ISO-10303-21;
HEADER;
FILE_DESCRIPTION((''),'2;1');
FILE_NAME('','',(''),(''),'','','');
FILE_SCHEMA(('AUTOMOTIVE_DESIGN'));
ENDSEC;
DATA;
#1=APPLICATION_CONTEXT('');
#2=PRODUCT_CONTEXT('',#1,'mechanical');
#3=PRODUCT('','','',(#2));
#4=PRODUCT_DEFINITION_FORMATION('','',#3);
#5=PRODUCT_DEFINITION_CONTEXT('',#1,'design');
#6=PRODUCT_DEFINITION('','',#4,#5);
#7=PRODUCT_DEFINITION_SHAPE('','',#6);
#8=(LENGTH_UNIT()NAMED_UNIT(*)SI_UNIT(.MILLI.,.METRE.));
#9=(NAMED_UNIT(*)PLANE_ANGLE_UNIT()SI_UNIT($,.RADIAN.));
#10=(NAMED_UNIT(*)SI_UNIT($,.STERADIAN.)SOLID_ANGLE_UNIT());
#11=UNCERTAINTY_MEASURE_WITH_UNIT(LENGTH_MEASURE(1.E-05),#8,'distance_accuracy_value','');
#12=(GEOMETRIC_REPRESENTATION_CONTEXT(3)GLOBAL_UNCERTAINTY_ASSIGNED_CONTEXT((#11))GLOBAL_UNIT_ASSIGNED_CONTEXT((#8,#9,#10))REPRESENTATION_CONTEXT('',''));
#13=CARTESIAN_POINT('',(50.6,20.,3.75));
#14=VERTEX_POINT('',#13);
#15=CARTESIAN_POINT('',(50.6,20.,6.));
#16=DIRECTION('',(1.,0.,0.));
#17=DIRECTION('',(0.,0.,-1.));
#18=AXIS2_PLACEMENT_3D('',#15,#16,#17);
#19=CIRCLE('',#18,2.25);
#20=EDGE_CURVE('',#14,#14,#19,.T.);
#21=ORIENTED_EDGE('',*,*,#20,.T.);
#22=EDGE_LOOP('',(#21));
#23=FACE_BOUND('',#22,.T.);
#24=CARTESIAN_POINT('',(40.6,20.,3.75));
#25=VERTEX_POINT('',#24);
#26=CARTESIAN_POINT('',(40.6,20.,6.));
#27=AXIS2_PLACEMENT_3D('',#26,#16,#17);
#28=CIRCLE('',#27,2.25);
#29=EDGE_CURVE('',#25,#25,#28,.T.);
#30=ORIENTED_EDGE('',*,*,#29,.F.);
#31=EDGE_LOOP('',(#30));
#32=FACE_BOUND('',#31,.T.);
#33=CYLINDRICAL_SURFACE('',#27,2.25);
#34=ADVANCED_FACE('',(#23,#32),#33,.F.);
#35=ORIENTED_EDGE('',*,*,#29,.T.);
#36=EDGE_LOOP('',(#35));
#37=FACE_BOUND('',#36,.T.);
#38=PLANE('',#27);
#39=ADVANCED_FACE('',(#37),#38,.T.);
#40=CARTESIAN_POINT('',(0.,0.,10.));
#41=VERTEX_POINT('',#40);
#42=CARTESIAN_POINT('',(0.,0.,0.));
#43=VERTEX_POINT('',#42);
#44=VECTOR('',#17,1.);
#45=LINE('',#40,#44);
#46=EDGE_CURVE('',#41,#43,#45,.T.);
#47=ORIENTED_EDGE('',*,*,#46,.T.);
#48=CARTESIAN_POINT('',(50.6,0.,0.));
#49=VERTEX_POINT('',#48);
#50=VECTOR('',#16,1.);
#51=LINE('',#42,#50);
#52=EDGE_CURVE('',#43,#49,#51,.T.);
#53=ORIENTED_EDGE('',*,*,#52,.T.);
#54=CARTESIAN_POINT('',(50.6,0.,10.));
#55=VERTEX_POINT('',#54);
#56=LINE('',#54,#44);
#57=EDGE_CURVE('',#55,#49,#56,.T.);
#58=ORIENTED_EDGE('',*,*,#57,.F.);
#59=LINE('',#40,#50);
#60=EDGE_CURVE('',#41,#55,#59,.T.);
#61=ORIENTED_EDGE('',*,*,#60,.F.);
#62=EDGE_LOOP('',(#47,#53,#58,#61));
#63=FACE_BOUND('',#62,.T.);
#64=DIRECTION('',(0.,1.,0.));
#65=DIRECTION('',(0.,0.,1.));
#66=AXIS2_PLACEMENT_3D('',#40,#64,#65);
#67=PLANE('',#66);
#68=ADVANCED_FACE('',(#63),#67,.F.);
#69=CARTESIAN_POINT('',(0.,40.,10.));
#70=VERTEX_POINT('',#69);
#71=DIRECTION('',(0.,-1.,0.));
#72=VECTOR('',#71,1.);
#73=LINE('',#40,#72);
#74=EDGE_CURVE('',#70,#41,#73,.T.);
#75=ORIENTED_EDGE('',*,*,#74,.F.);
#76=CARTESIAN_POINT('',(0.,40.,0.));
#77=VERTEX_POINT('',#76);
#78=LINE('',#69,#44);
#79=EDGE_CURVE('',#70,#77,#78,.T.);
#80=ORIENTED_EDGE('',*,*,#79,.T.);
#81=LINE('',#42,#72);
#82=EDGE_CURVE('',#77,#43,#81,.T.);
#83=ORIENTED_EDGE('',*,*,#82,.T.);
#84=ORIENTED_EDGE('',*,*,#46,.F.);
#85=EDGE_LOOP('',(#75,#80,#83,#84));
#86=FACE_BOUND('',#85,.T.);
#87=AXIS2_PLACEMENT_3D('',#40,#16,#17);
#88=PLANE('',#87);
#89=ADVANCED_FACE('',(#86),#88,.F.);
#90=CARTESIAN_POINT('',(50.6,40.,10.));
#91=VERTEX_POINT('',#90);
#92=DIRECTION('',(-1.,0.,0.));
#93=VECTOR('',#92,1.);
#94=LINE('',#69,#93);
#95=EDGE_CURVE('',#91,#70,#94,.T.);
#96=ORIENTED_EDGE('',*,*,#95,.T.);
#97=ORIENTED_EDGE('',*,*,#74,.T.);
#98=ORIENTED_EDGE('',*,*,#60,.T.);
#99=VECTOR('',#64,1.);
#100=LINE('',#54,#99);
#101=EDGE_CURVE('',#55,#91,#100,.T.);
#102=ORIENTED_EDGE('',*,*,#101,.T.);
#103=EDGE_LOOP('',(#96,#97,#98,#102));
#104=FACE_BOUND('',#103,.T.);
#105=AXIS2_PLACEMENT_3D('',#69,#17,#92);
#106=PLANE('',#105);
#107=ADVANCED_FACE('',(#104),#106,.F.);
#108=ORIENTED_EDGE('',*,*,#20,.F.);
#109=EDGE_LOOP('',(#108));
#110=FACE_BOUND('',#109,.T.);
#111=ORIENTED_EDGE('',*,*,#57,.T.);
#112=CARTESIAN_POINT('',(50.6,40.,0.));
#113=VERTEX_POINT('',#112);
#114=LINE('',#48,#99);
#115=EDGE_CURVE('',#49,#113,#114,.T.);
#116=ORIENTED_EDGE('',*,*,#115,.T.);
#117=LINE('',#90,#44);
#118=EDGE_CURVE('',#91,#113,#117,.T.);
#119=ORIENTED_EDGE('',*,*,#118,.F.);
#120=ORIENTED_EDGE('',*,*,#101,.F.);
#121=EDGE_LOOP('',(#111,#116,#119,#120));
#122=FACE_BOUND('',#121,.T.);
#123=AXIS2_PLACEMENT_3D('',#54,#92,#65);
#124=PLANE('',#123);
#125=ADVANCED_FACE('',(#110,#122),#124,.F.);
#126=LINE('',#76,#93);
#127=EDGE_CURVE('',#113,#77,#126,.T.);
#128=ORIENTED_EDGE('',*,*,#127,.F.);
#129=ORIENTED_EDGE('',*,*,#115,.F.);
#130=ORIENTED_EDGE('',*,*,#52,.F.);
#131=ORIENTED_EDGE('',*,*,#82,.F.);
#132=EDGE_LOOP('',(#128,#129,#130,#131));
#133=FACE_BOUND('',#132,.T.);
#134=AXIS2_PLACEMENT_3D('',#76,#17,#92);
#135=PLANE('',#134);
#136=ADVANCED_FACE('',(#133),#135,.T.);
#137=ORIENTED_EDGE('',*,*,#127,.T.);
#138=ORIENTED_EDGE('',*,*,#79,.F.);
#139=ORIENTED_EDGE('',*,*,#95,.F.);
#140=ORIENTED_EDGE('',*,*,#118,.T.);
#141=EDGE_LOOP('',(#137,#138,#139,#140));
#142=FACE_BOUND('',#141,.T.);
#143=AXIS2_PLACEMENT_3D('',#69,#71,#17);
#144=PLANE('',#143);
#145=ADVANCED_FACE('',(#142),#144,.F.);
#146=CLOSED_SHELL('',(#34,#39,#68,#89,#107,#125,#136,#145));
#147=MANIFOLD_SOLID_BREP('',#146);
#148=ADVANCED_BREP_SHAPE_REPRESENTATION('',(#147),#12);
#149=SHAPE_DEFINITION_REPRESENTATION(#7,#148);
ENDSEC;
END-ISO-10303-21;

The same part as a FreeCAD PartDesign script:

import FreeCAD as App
import Part
import Sketcher

V = App.Vector
Q = App.Units.Quantity

doc = App.newDocument("Part")
body = doc.addObject("PartDesign::Body", "Body")

# Sketch on XY plane
sketch1 = body.newObject("Sketcher::SketchObject", "Sketch")
sketch1.AttachmentSupport = (doc.getObject("XY_Plane"), [""])
sketch1.MapMode = "FlatFace"
sketch1.addGeometry([
    Part.LineSegment(V(0, 40, 0), V(0, 0, 0)),
    Part.LineSegment(V(0, 0, 0), V(51, 0, 0)),
    Part.LineSegment(V(51, 0, 0), V(51, 40, 0)),
    Part.LineSegment(V(51, 40, 0), V(0, 40, 0)),
], False)
sketch1.addConstraint([
    Sketcher.Constraint("Coincident", 0, 2, 1, 1),
    Sketcher.Constraint("Coincident", 1, 2, 2, 1),
    Sketcher.Constraint("Coincident", 2, 2, 3, 1),
    Sketcher.Constraint("Coincident", 3, 2, 0, 1),
    Sketcher.Constraint("Vertical", 0),
    Sketcher.Constraint("Horizontal", 1),
    Sketcher.Constraint("Vertical", 2),
    Sketcher.Constraint("Horizontal", 3),
    Sketcher.Constraint("Coincident", 0, 2, -1, 1),
    Sketcher.Constraint("DistanceY", 0, 2, 0, 1, Q("40 mm")),
    Sketcher.Constraint("DistanceX", 1, 1, 1, 2, Q("50.6 mm")),
])
pad1 = body.newObject("PartDesign::Pad", "Pad")
pad1.Profile = sketch1
pad1.Length = 10

# Sketch on YZ plane
sketch2 = body.newObject("Sketcher::SketchObject", "Sketch001")
sketch2.AttachmentSupport = (doc.getObject("YZ_Plane"), [""])
sketch2.MapMode = "FlatFace"
sketch2.AttachmentOffset = App.Placement(V(0, 0, 50.6), App.Rotation())
sketch2.addGeometry(Part.Circle(V(20, 6, 0), V(0, 0, 1), 2.2), False)
sketch2.addConstraint([
    Sketcher.Constraint("Diameter", 0, Q("4.5 mm")),
    Sketcher.Constraint("DistanceX", -1, 1, 0, 3, Q("20 mm")),
    Sketcher.Constraint("DistanceY", -1, 1, 0, 3, Q("6 mm")),
])
pocket1 = body.newObject("PartDesign::Pocket", "Pocket")
pocket1.Profile = sketch2
pocket1.Length = 10

doc.recompute()
